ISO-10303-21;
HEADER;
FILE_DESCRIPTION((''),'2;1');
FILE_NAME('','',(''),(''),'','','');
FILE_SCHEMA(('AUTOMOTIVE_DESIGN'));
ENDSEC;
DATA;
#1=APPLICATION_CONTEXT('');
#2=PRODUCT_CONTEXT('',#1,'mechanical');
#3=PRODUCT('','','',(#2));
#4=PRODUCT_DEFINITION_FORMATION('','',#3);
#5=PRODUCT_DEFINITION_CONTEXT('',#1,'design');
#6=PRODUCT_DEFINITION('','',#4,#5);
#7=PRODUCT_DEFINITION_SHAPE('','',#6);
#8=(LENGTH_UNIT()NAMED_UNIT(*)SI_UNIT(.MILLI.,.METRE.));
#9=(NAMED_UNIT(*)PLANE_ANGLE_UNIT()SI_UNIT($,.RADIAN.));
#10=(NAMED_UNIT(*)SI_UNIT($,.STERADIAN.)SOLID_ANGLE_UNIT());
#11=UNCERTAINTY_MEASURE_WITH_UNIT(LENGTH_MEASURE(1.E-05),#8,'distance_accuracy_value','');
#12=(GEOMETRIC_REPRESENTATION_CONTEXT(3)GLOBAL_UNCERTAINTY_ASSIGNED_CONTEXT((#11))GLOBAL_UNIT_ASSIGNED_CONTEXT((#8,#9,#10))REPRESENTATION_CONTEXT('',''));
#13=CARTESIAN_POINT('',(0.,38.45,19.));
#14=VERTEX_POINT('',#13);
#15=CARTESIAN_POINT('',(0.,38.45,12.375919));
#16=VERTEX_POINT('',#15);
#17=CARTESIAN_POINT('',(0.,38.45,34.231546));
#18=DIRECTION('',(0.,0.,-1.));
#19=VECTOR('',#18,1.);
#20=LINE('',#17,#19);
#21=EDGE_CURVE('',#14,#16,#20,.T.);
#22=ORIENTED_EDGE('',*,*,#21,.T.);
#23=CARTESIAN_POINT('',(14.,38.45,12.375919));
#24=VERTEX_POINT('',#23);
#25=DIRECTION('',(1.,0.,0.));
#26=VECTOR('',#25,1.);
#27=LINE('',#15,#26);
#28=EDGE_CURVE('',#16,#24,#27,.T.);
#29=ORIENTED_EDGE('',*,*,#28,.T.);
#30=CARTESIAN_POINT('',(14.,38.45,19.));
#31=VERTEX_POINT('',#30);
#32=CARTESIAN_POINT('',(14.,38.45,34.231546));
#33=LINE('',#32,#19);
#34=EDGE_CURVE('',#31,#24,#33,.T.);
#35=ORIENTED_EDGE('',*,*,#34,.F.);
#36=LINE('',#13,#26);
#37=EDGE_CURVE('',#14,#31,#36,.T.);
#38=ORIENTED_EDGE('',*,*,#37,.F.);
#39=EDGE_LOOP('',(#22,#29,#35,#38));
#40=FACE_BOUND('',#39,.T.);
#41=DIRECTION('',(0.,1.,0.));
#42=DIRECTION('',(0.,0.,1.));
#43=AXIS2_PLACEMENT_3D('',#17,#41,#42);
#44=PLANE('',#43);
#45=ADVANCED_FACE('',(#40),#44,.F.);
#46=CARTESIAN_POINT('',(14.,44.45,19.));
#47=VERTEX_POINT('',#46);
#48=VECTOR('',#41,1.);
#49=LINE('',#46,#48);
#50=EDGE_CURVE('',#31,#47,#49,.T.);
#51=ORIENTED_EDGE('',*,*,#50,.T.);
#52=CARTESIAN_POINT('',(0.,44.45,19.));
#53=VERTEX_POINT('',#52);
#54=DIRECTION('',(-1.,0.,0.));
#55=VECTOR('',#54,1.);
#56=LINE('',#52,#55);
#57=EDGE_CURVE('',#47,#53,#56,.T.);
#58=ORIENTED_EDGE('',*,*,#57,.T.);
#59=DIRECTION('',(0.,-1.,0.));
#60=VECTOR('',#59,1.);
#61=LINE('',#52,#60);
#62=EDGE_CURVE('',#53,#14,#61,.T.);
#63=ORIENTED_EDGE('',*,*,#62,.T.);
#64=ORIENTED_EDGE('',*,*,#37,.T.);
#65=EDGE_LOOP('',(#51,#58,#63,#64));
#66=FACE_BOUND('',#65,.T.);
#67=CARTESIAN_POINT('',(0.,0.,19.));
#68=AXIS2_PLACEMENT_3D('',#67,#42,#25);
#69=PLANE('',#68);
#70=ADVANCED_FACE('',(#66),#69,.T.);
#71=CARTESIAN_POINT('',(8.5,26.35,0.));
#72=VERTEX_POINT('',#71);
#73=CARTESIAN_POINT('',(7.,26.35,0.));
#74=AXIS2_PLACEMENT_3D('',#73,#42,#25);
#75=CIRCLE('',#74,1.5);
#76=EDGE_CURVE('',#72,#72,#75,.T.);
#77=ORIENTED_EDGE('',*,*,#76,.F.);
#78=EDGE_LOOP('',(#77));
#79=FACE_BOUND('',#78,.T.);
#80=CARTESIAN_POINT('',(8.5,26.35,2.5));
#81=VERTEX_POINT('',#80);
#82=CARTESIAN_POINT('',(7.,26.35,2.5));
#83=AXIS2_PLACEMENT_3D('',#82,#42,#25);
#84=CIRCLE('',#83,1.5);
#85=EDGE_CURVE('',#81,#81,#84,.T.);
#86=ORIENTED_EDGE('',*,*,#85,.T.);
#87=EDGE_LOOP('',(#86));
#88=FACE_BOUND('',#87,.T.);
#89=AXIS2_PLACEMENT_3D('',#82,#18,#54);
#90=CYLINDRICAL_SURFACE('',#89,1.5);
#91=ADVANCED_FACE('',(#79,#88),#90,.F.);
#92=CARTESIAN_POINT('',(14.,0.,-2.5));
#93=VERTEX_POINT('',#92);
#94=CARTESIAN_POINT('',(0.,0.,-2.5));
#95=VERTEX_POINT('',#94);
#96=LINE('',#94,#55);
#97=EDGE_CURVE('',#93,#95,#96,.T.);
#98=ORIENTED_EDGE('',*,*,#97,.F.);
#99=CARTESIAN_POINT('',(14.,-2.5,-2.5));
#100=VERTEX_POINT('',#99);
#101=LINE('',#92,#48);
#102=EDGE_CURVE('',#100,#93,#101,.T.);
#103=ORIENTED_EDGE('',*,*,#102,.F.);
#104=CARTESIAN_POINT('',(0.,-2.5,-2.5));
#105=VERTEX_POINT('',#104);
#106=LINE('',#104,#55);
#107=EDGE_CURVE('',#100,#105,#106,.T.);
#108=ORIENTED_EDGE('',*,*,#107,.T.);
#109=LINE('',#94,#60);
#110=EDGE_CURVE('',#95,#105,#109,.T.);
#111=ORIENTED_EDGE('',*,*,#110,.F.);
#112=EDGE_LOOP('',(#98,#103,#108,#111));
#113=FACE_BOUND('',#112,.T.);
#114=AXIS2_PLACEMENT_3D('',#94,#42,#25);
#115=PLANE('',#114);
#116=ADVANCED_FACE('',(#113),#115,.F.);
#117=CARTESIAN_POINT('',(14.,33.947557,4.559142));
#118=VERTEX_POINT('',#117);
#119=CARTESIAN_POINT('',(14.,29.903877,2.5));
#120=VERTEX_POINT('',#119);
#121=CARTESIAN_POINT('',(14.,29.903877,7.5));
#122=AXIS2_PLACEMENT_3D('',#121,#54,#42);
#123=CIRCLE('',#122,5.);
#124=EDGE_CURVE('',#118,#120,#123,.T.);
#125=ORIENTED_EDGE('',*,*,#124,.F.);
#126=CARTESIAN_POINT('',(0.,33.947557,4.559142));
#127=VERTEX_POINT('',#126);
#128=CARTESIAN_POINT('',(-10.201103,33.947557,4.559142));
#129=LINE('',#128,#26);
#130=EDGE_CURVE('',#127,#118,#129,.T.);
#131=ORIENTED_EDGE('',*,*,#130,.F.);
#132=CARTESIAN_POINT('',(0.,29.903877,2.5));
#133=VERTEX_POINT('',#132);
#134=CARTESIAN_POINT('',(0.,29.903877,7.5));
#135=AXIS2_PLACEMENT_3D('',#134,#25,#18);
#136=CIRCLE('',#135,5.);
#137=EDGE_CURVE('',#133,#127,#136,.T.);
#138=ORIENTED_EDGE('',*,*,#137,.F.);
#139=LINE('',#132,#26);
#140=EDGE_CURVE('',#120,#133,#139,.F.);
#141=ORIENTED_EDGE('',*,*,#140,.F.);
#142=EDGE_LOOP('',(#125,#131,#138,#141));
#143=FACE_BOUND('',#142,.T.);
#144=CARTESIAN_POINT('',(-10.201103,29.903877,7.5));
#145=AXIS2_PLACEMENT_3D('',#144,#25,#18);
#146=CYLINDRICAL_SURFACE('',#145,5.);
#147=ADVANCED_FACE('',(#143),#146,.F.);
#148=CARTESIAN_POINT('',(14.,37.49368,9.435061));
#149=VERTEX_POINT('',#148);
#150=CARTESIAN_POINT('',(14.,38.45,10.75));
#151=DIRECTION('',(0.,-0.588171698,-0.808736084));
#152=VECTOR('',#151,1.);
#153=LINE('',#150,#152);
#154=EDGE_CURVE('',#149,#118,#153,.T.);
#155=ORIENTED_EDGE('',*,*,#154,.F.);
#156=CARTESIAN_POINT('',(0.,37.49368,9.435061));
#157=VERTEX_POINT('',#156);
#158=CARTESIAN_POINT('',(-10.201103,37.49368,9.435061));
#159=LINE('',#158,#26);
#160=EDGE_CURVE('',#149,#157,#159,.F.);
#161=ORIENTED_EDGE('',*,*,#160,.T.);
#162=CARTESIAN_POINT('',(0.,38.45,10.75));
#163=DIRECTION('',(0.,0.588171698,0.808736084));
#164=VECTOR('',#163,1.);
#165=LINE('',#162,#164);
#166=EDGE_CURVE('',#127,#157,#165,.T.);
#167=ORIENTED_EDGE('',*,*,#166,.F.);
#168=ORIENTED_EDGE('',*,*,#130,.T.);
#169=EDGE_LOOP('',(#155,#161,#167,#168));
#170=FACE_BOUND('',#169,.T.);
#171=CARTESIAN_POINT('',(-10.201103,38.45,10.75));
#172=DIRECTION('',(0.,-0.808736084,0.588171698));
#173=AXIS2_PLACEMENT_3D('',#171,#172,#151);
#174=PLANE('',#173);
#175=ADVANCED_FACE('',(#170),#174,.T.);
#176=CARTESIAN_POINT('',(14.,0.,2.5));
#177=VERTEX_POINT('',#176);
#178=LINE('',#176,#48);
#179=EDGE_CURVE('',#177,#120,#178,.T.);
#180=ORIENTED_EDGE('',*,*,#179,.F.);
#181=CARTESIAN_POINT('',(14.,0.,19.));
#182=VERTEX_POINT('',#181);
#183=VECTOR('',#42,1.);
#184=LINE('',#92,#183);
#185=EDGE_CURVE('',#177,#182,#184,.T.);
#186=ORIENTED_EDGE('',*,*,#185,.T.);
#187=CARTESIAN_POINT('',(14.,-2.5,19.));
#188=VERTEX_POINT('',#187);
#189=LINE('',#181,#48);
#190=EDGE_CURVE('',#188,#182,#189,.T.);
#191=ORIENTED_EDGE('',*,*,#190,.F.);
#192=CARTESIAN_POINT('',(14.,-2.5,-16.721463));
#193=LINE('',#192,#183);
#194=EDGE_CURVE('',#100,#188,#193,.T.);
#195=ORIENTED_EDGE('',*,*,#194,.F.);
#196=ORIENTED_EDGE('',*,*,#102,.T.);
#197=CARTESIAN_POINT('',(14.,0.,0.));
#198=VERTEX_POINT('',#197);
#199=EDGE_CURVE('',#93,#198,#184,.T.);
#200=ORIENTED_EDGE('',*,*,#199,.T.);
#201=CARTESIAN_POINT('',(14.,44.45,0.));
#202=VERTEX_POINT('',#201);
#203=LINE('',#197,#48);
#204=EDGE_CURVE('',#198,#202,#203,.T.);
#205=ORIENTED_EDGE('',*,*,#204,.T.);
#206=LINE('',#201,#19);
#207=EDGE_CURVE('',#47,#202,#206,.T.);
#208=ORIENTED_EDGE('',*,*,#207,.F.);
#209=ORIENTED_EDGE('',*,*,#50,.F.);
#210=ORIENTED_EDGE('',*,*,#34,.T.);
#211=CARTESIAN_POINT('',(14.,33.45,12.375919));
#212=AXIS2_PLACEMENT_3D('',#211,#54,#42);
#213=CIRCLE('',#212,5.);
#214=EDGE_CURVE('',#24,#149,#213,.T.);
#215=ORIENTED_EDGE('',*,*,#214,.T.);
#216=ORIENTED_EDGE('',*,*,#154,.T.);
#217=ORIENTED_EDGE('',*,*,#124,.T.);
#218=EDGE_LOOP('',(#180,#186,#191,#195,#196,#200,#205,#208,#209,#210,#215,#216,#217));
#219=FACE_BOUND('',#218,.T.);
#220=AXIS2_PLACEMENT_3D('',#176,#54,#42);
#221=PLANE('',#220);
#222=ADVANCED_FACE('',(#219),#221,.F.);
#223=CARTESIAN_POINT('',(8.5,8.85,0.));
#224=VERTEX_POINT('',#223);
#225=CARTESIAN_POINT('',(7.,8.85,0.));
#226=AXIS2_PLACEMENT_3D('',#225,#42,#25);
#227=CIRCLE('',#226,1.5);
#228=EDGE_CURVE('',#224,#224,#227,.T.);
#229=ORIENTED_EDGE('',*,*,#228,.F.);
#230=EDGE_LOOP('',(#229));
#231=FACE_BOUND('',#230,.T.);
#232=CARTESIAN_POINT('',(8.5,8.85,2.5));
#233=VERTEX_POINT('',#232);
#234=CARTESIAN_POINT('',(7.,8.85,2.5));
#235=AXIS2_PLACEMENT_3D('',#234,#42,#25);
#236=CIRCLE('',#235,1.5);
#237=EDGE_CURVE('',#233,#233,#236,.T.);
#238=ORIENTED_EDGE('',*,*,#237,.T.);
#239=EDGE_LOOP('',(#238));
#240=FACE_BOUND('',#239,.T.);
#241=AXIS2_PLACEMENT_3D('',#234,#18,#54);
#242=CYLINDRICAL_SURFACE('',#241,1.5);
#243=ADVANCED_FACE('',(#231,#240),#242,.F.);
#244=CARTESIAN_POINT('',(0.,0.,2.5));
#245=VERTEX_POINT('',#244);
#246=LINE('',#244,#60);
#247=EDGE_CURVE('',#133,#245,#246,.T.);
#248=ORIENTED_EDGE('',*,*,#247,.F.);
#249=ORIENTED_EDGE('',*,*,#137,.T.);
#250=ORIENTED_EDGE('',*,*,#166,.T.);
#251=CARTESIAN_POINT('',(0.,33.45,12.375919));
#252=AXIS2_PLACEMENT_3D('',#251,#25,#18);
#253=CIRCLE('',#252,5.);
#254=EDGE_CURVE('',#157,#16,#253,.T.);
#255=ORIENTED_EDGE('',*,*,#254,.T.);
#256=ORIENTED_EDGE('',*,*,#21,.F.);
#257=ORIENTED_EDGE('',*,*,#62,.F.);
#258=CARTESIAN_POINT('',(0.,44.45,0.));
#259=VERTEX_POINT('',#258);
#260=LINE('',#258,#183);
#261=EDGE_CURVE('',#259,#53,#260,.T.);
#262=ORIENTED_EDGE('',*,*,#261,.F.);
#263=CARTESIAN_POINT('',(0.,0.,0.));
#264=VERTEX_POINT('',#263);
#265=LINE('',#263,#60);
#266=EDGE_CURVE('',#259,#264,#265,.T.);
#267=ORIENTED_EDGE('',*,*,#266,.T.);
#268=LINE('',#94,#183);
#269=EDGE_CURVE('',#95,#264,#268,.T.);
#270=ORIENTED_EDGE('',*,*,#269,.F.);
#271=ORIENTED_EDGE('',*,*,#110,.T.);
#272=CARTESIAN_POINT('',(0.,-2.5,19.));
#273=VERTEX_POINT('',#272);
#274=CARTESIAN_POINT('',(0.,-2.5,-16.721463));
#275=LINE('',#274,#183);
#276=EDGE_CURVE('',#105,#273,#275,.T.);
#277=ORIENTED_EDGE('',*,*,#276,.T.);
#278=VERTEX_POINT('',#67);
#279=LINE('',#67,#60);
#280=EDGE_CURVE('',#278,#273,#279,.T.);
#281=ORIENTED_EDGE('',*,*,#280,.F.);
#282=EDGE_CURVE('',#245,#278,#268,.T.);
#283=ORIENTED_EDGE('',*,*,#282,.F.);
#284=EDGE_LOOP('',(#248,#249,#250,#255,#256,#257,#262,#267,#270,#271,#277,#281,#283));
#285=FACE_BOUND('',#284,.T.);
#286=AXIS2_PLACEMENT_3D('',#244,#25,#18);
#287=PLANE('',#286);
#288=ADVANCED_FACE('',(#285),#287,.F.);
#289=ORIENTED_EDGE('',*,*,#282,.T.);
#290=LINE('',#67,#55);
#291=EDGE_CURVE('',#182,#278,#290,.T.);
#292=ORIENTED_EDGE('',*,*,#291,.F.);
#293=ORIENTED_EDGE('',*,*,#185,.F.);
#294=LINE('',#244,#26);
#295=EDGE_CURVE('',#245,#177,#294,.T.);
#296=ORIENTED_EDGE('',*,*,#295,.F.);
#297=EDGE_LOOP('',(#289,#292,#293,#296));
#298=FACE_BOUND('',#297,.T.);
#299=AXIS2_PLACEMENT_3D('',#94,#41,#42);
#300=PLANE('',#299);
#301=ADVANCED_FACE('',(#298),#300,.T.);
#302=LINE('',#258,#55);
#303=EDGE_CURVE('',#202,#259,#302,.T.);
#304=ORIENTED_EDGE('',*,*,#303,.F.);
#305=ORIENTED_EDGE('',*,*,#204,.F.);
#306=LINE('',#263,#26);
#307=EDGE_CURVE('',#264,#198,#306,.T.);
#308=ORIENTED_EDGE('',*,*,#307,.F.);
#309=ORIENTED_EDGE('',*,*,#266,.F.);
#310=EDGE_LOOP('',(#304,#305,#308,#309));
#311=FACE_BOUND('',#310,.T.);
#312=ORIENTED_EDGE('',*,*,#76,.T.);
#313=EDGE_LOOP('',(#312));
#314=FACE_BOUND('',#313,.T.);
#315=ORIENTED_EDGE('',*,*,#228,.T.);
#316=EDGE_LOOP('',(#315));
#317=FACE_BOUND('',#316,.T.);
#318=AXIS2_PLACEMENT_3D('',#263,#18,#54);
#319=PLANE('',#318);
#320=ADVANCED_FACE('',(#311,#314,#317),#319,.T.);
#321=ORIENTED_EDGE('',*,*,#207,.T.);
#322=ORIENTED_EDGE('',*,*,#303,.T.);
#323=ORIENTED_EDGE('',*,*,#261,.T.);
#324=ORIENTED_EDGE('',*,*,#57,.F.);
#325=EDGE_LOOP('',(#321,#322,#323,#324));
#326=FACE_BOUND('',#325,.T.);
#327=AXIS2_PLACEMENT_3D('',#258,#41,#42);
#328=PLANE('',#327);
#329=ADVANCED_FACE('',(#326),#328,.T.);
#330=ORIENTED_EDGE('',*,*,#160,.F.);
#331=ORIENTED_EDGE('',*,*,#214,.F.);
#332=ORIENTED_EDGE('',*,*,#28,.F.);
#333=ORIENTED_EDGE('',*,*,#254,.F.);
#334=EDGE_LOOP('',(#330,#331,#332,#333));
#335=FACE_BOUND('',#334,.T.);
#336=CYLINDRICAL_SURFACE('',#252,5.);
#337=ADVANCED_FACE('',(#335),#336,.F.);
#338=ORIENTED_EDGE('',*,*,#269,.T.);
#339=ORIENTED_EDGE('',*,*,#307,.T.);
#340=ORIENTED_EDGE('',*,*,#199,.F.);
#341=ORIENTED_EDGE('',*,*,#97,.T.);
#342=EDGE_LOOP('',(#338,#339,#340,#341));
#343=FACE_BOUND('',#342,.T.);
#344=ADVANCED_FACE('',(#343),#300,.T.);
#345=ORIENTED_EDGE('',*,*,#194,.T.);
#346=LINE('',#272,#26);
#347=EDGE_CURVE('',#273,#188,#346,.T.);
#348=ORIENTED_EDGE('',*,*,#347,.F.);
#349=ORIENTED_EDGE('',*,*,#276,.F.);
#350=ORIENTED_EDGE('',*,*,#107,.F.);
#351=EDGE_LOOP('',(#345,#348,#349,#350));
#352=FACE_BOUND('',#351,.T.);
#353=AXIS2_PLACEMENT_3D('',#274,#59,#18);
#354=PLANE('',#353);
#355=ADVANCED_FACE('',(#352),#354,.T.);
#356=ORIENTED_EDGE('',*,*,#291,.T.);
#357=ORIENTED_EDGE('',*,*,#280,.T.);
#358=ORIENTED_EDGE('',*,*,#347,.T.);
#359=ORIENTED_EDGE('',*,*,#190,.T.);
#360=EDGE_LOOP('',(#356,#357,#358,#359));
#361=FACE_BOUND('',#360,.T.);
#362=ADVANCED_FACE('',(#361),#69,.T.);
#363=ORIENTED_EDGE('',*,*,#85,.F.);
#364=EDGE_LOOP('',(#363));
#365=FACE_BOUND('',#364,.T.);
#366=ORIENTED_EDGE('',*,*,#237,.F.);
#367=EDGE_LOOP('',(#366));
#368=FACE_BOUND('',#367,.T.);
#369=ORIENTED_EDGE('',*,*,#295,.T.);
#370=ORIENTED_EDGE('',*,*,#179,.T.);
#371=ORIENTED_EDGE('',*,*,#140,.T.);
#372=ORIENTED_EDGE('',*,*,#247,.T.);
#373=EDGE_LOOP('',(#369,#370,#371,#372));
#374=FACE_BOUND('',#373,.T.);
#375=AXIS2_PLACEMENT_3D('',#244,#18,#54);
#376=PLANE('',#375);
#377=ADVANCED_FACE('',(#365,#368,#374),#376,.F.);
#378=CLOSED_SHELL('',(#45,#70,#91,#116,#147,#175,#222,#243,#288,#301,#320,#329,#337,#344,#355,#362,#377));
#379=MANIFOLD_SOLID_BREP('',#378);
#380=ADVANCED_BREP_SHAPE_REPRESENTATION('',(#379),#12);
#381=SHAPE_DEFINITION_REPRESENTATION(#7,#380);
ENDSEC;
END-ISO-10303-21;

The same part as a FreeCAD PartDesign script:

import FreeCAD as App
import Part
import Sketcher

V = App.Vector
Q = App.Units.Quantity


def edges_at(feature, points):
    """Names of the edges that pass closest to the given points."""
    edges = feature.Shape.Edges
    near = lambda p: min(range(len(edges)), key=lambda i: edges[i].distToShape(Part.Vertex(*p))[0])
    return sorted({f"Edge{near(p) + 1}" for p in points})


def add_polygon(sketch, points):
    """Adds a closed chain of lines whose ends are joined by coincident constraints."""
    first, n = sketch.GeometryCount, len(points)
    for a, b in zip(points, points[1:] + points[:1]):
        sketch.addGeometry(Part.LineSegment(App.Vector(*a, 0), App.Vector(*b, 0)), False)
    for i in range(n):
        sketch.addConstraint(Sketcher.Constraint("Coincident", first + i, 2, first + (i + 1) % n, 1))

doc = App.newDocument("Part")
body = doc.addObject("PartDesign::Body", "Body")

# Sketch on XY plane
sketch1 = body.newObject("Sketcher::SketchObject", "Sketch")
sketch1.AttachmentSupport = (doc.getObject("XY_Plane"), [""])
sketch1.MapMode = "FlatFace"
add_polygon(sketch1, [(0, 28.85), (0, 0), (14, 0), (14, 28.85)])  # lines 0-3
sketch1.addGeometry(Part.Circle(V(7, 8.85, 0), V(0, 0, 1), 1.5), False)  # 4
sketch1.addGeometry(Part.Circle(V(7, 26.35, 0), V(0, 0, 1), 1.5), False)  # 5
sketch1.addConstraint(Sketcher.Constraint("Vertical", 0))
sketch1.addConstraint(Sketcher.Constraint("Horizontal", 1))
sketch1.addConstraint(Sketcher.Constraint("Vertical", 2))
sketch1.addConstraint(Sketcher.Constraint("Horizontal", 3))
sketch1.addConstraint(Sketcher.Constraint("Coincident", 0, 2, -1, 1))
sketch1.addConstraint(Sketcher.Constraint("Equal", 4, 5))
sketch1.addConstraint(Sketcher.Constraint("Vertical", 4, 3, 5, 3))
sketch1.addConstraint(Sketcher.Constraint("Diameter", 4, Q("3 mm")))
sketch1.addConstraint(Sketcher.Constraint("DistanceX", 1, 1, 1, 2, Q("14 mm")))
sketch1.addConstraint(Sketcher.Constraint("DistanceX", -1, 1, 4, 3, Q("7 mm")))
sketch1.addConstraint(Sketcher.Constraint("DistanceY", 4, 3, 2, 2, Q("20 mm")))
sketch1.addConstraint(Sketcher.Constraint("DistanceY", 0, 2, 0, 1, Q("28.85 mm")))
sketch1.addConstraint(Sketcher.Constraint("DistanceY", 4, 3, 5, 3, Q("17.5 mm")))
pad1 = body.newObject("PartDesign::Pad", "Pad")
pad1.Profile = sketch1
pad1.Length = 2.5

# Sketch on XY plane
sketch2 = body.newObject("Sketcher::SketchObject", "Sketch001")
sketch2.AttachmentSupport = (doc.getObject("XY_Plane"), [""])
sketch2.MapMode = "FlatFace"
sketch2.AttachmentOffset = App.Placement(V(0, 0, 2.5), App.Rotation())
add_polygon(sketch2, [(0, 0), (0, -2), (14, -2), (14, 0)])  # lines 0-3
sketch2.addConstraint(Sketcher.Constraint("Vertical", 0))
sketch2.addConstraint(Sketcher.Constraint("Horizontal", 1))
sketch2.addConstraint(Sketcher.Constraint("Vertical", 2))
sketch2.addConstraint(Sketcher.Constraint("Horizontal", 3))
sketch2.addConstraint(Sketcher.Constraint("Coincident", 3, 2, -1, 1))
sketch2.addConstraint(Sketcher.Constraint("DistanceX", 1, 1, 1, 2, Q("14 mm")))
sketch2.addConstraint(Sketcher.Constraint("DistanceY", 0, 2, 0, 1, Q("2 mm")))
pad2 = body.newObject("PartDesign::Pad", "Pad001")
pad2.Profile = sketch2
pad2.Type = "TwoLengths"
pad2.Length = 16.5
pad2.Length2 = 5

# Sketch on XZ plane
sketch3 = body.newObject("Sketcher::SketchObject", "Sketch002")
sketch3.AttachmentSupport = (doc.getObject("XZ_Plane"), [""])
sketch3.MapMode = "FlatFace"
sketch3.AttachmentOffset = App.Placement(V(0, 0, -28.85), App.Rotation())
add_polygon(sketch3, [(0, 0), (0, 2.5), (14, 2.5), (14, 0)])  # lines 0-3
sketch3.addConstraint(Sketcher.Constraint("Vertical", 0))
sketch3.addConstraint(Sketcher.Constraint("Horizontal", 1))
sketch3.addConstraint(Sketcher.Constraint("Vertical", 2))
sketch3.addConstraint(Sketcher.Constraint("Horizontal", 3))
sketch3.addConstraint(Sketcher.Constraint("Coincident", 3, 2, -1, 1))
sketch3.addConstraint(Sketcher.Constraint("DistanceX", 1, 1, 1, 2, Q("14 mm")))
sketch3.addConstraint(Sketcher.Constraint("DistanceY", 0, 1, 0, 2, Q("2.5 mm")))
pad3 = body.newObject("PartDesign::Pad", "Pad002")
pad3.Profile = sketch3
pad3.Length = 15.6
pad3.Reversed = True

# Sketch on XY plane
sketch4 = body.newObject("Sketcher::SketchObject", "Sketch003")
sketch4.AttachmentSupport = (doc.getObject("XY_Plane"), [""])
sketch4.MapMode = "FlatFace"
sketch4.AttachmentOffset = App.Placement(V(0, 0, 19), App.Rotation())
add_polygon(sketch4, [(0, 0), (0, -2.5), (14, -2.5), (14, 0)])  # lines 0-3
sketch4.addConstraint(Sketcher.Constraint("Vertical", 0))
sketch4.addConstraint(Sketcher.Constraint("Horizontal", 1))
sketch4.addConstraint(Sketcher.Constraint("Vertical", 2))
sketch4.addConstraint(Sketcher.Constraint("Horizontal", 3))
sketch4.addConstraint(Sketcher.Constraint("Coincident", 3, 2, -1, 1))
sketch4.addConstraint(Sketcher.Constraint("DistanceX", 1, 1, 1, 2, Q("14 mm")))
sketch4.addConstraint(Sketcher.Constraint("DistanceY", 0, 2, 0, 1, Q("2.5 mm")))
pad4 = body.newObject("PartDesign::Pad", "Pad003")
pad4.Profile = sketch4
pad4.Length = 21.5
pad4.Reversed = True

# Sketch on XY plane
sketch5 = body.newObject("Sketcher::SketchObject", "Sketch004")
sketch5.AttachmentSupport = (doc.getObject("XY_Plane"), [""])
sketch5.MapMode = "FlatFace"
sketch5.AttachmentOffset = App.Placement(V(0, 0, 2.5), App.Rotation())
add_polygon(sketch5, [(0, 44.45), (0, 38.45), (14, 38.45), (14, 44.45)])  # lines 0-3
sketch5.addConstraint(Sketcher.Constraint("Vertical", 0))
sketch5.addConstraint(Sketcher.Constraint("Horizontal", 1))
sketch5.addConstraint(Sketcher.Constraint("Vertical", 2))
sketch5.addConstraint(Sketcher.Constraint("Horizontal", 3))
sketch5.addConstraint(Sketcher.Constraint("PointOnObject", 0, 2, -2))
sketch5.addConstraint(Sketcher.Constraint("DistanceX", 1, 1, 1, 2, Q("14 mm")))
sketch5.addConstraint(Sketcher.Constraint("DistanceY", 0, 2, 0, 1, Q("6 mm")))
sketch5.addConstraint(Sketcher.Constraint("DistanceY", -1, 1, 0, 2, Q("38.45 mm")))
pad5 = body.newObject("PartDesign::Pad", "Pad004")
pad5.Profile = sketch5
pad5.Length = 16.5

# Sketch on YZ plane
sketch6 = body.newObject("Sketcher::SketchObject", "Sketch005")
sketch6.AttachmentSupport = (doc.getObject("YZ_Plane"), [""])
sketch6.MapMode = "FlatFace"
sketch6.AttachmentOffset = App.Placement(V(0, 0, 14), App.Rotation())
add_polygon(sketch6, [(38.45, 10.75), (32.45, 2.5), (38.45, 2.5)])  # lines 0-2
sketch6.addConstraint(Sketcher.Constraint("Horizontal", 1))
sketch6.addConstraint(Sketcher.Constraint("Vertical", 2))
sketch6.addConstraint(Sketcher.Constraint("DistanceX", 1, 1, 1, 2, Q("6 mm")))
sketch6.addConstraint(Sketcher.Constraint("DistanceY", 2, 1, 2, 2, Q("8.25 mm")))
sketch6.addConstraint(Sketcher.Constraint("DistanceY", -1, 1, 0, 2, Q("2.5 mm")))
sketch6.addConstraint(Sketcher.Constraint("DistanceX", -1, 1, 0, 2, Q("32.45 mm")))
pad6 = body.newObject("PartDesign::Pad", "Pad005")
pad6.Profile = sketch6
pad6.Length = 14
pad6.Reversed = True
doc.recompute()

fillet = body.newObject("PartDesign::Fillet", "Fillet")
fillet.Base = (pad6, edges_at(pad6, [(7, 38.45, 10.75), (7, 32.45, 2.5)]))
fillet.Radius = 5

doc.recompute()
